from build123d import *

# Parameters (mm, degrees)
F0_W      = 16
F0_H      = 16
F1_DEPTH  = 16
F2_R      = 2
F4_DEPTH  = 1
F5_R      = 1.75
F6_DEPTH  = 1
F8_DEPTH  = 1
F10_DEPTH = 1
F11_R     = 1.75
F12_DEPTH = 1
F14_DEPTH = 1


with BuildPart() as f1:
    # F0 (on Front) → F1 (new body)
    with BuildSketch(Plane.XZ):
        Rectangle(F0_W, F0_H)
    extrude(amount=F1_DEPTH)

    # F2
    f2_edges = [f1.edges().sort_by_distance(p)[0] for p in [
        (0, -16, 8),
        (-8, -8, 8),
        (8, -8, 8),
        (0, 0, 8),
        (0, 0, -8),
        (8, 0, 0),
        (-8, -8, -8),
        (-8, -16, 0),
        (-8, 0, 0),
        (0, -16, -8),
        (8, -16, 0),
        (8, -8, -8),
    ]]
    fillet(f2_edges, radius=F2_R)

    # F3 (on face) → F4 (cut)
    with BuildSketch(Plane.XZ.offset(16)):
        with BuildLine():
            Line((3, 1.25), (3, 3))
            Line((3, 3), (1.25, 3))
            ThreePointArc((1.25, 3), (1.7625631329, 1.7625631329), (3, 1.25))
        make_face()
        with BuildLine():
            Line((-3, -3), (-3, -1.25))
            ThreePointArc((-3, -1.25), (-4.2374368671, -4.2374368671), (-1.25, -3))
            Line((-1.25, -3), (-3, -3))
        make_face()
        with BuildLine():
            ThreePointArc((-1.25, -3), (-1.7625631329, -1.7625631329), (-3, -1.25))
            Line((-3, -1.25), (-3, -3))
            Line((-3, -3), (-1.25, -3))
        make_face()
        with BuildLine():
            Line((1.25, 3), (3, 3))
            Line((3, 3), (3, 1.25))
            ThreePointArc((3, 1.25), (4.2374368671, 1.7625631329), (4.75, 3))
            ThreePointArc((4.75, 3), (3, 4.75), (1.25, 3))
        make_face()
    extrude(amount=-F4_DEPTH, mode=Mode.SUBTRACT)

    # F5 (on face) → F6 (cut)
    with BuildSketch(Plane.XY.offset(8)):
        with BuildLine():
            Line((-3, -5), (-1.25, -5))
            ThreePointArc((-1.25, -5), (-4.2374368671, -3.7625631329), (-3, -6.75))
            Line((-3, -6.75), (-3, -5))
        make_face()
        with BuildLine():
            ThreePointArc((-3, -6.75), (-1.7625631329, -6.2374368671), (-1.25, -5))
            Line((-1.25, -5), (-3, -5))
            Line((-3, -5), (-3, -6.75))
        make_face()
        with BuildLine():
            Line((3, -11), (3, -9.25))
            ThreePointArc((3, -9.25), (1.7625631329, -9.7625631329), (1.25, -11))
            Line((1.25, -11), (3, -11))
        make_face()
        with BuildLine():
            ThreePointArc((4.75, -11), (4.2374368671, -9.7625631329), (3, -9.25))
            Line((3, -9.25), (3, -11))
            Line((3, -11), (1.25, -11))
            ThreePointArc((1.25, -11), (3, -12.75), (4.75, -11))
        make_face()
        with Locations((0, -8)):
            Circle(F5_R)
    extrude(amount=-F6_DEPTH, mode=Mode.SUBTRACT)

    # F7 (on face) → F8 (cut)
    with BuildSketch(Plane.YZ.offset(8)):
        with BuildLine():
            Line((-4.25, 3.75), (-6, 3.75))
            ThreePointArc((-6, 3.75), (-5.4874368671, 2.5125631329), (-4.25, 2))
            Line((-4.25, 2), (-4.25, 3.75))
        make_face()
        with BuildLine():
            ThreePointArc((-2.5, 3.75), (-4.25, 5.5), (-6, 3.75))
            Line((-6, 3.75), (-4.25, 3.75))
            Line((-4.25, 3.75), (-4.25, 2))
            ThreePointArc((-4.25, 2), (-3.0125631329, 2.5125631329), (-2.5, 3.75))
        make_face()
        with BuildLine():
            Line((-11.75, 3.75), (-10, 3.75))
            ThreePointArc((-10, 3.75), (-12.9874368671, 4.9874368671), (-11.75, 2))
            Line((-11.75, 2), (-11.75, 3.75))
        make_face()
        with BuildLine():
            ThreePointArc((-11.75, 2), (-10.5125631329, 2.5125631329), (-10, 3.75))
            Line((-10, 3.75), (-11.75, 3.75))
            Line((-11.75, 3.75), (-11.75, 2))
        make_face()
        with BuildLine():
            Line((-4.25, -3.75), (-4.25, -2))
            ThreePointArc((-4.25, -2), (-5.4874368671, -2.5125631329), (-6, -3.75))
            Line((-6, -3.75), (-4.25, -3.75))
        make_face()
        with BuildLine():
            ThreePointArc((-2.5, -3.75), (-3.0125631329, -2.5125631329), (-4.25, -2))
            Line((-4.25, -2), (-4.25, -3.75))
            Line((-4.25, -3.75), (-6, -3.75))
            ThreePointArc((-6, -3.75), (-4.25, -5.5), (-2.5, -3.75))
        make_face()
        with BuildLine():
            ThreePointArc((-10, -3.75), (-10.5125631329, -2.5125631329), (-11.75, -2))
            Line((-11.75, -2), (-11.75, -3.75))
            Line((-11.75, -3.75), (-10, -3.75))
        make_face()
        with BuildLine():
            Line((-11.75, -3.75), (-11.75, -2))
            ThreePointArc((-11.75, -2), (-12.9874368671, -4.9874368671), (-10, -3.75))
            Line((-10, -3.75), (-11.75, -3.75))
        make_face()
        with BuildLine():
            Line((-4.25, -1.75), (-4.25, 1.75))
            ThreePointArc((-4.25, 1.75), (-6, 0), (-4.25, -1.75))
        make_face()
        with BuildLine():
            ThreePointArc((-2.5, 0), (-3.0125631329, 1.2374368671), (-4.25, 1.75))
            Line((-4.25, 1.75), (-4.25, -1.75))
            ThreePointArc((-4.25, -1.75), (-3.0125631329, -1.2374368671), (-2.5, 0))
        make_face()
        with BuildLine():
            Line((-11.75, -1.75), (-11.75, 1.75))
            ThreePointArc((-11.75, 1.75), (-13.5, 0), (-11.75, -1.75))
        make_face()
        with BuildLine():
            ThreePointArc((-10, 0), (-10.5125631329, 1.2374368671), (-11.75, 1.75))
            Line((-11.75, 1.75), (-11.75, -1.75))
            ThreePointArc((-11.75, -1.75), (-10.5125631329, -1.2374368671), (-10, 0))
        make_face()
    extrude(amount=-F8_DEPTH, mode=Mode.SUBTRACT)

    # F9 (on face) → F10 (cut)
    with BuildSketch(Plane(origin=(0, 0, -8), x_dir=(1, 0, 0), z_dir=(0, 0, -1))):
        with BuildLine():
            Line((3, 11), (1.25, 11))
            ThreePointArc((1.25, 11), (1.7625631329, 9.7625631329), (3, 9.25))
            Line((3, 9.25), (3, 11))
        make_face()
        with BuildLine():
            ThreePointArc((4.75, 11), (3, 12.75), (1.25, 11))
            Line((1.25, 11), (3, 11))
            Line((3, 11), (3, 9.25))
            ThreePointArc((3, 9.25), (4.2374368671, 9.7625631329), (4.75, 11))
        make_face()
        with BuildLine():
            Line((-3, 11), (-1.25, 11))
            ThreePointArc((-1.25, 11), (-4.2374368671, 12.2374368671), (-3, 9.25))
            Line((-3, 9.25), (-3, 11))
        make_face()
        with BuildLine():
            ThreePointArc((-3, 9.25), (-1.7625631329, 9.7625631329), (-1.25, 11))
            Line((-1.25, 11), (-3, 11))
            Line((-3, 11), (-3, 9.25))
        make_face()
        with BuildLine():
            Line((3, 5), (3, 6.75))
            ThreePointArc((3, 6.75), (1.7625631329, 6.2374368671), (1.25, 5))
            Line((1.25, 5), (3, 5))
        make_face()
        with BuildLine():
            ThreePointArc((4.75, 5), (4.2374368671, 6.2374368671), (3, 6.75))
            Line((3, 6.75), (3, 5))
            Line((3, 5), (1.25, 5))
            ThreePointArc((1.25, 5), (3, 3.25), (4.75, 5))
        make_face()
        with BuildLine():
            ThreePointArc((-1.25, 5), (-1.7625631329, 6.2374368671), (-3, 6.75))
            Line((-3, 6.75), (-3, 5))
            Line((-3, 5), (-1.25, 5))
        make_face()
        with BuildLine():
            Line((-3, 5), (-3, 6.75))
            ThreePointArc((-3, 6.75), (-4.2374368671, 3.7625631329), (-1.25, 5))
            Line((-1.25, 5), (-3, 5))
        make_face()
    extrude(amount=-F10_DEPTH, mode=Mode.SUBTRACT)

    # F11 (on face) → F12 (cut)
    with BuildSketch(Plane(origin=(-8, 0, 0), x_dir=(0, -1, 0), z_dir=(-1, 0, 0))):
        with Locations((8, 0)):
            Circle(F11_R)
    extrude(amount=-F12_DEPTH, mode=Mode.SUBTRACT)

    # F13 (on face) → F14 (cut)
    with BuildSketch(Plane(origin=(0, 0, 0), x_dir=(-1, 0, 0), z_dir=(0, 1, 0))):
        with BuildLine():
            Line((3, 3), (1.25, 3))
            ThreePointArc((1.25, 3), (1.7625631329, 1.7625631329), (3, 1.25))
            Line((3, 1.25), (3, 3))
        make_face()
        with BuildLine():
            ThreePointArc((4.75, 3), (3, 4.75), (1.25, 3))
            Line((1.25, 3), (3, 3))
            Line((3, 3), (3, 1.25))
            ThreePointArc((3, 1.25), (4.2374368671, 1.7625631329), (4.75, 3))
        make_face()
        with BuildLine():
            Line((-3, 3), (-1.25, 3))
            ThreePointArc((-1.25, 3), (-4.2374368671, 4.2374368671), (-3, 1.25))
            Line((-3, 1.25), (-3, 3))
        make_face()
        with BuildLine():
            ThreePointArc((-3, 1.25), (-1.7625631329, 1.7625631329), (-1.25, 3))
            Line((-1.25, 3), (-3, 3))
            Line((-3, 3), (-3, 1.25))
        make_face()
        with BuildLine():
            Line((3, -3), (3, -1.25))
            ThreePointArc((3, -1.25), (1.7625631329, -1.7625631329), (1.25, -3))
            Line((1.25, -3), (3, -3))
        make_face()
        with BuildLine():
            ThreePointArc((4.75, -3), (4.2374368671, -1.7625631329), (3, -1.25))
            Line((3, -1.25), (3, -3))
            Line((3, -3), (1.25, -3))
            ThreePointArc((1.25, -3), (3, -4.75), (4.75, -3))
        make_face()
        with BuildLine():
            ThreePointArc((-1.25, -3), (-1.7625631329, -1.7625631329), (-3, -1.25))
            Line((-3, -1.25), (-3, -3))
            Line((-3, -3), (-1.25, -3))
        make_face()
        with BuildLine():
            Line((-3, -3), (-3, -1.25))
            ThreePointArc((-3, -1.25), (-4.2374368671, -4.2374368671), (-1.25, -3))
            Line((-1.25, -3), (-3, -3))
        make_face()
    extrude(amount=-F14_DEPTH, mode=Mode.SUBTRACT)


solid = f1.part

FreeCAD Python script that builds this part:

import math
import FreeCAD as App
import Part
import Sketcher
Q = App.Units.Quantity

doc = App.newDocument("Part")
body = doc.addObject("PartDesign::Body", "Body")

sketch1 = body.newObject("Sketcher::SketchObject", "Sketch")
sketch1.AttachmentSupport = (doc.getObject("XZ_Plane"), [""])
sketch1.MapMode = "FlatFace"
sketch1.addGeometry([
    Part.LineSegment(App.Vector(-8, 8, 0), App.Vector(-8, -8, 0)),
    Part.LineSegment(App.Vector(-8, -8, 0), App.Vector(8, -8, 0)),
    Part.LineSegment(App.Vector(8, -8, 0), App.Vector(8, 8, 0)),
    Part.LineSegment(App.Vector(8, 8, 0), App.Vector(-8, 8, 0)),
], False)
sketch1.addConstraint([
    Sketcher.Constraint("Coincident", 0, 2, 1, 1),
    Sketcher.Constraint("Coincident", 1, 2, 2, 1),
    Sketcher.Constraint("Coincident", 2, 2, 3, 1),
    Sketcher.Constraint("Coincident", 3, 2, 0, 1),
    Sketcher.Constraint("Vertical", 0),
    Sketcher.Constraint("Horizontal", 1),
    Sketcher.Constraint("Vertical", 2),
    Sketcher.Constraint("Horizontal", 3),
    Sketcher.Constraint("Symmetric", 0, 2, 2, 2, -1, 1),
    Sketcher.Constraint("Equal", 3, 0),
    Sketcher.Constraint("DistanceX", 1, 1, 1, 2, Q("16 mm")),
])
pad1 = body.newObject("PartDesign::Pad", "Pad")
pad1.Profile = sketch1
pad1.Length = 16
doc.recompute()

fillet = body.newObject("PartDesign::Fillet", "Fillet")
fillet.Base = (pad1, ["Edge1"])
fillet.UseAllEdges = True
fillet.Radius = 2

sketch2 = body.newObject("Sketcher::SketchObject", "Sketch001")
sketch2.AttachmentSupport = (doc.getObject("XZ_Plane"), [""])
sketch2.MapMode = "FlatFace"
sketch2.AttachmentOffset = App.Placement(App.Vector(0, 0, 16), App.Rotation())
sketch2.addGeometry([
    Part.ArcOfCircle(Part.Circle(App.Vector(3, 3, 0), App.Vector(0, 0, 1), 1.8), math.radians(180), math.radians(270)),
    Part.ArcOfCircle(Part.Circle(App.Vector(3, 3, 0), App.Vector(0, 0, 1), 1.8), math.radians(-90), math.radians(0)),
    Part.ArcOfCircle(Part.Circle(App.Vector(3, 3, 0), App.Vector(0, 0, 1), 1.8), math.radians(0), math.radians(180)),
    Part.ArcOfCircle(Part.Circle(App.Vector(-3, -3, 0), App.Vector(0, 0, 1), 1.8), math.radians(90), math.radians(360)),
    Part.ArcOfCircle(Part.Circle(App.Vector(-3, -3, 0), App.Vector(0, 0, 1), 1.8), math.radians(0), math.radians(90)),
], False)
sketch2.addConstraint([
    Sketcher.Constraint("Tangent", 0, 2, 1, 1),
    Sketcher.Constraint("Tangent", 1, 2, 2, 1),
    Sketcher.Constraint("Tangent", 2, 2, 0, 1),
    Sketcher.Constraint("Tangent", 3, 1, 4, 2),
    Sketcher.Constraint("Coincident", 4, 1, 3, 2),
    Sketcher.Constraint("Equal", 2, 3),
    Sketcher.Constraint("Symmetric", 0, 3, 3, 3, -1, 1),
    Sketcher.Constraint("Horizontal", 2, 3, 1, 2),
    Sketcher.Constraint("Horizontal", 1, 2, 2, 2),
    Sketcher.Constraint("Horizontal", 3, 3, 4, 1),
    Sketcher.Constraint("Vertical", 2, 3, 0, 2),
    Sketcher.Constraint("Vertical", 4, 3, 3, 1),
    Sketcher.Constraint("Radius", 0, Q("1.75 mm")),
    Sketcher.Constraint("DistanceX", -1, 1, 0, 3, Q("3 mm")),
    Sketcher.Constraint("DistanceY", -1, 1, 0, 3, Q("3 mm")),
])
pocket1 = body.newObject("PartDesign::Pocket", "Pocket")
pocket1.Profile = sketch2
pocket1.Length = 1

sketch3 = body.newObject("Sketcher::SketchObject", "Sketch002")
sketch3.AttachmentSupport = (doc.getObject("XY_Plane"), [""])
sketch3.MapMode = "FlatFace"
sketch3.AttachmentOffset = App.Placement(App.Vector(0, 0, 8), App.Rotation())
sketch3.addGeometry([
    Part.ArcOfCircle(Part.Circle(App.Vector(-3, -5, 0), App.Vector(0, 0, 1), 1.8), math.radians(0), math.radians(270)),
    Part.ArcOfCircle(Part.Circle(App.Vector(-3, -5, 0), App.Vector(0, 0, 1), 1.8), math.radians(-90), math.radians(0)),
    Part.ArcOfCircle(Part.Circle(App.Vector(3, -11, 0), App.Vector(0, 0, 1), 1.8), math.radians(90), math.radians(180)),
    Part.ArcOfCircle(Part.Circle(App.Vector(3, -11, 0), App.Vector(0, 0, 1), 1.8), math.radians(180), math.radians(360)),
    Part.ArcOfCircle(Part.Circle(App.Vector(3, -11, 0), App.Vector(0, 0, 1), 1.8), math.radians(0), math.radians(90)),
    Part.Circle(App.Vector(0, -8, 0), App.Vector(0, 0, 1), 1.8),
], False)
sketch3.addConstraint([
    Sketcher.Constraint("Tangent", 0, 1, 1, 2),
    Sketcher.Constraint("Coincident", 1, 1, 0, 2),
    Sketcher.Constraint("Tangent", 2, 2, 3, 1),
    Sketcher.Constraint("Tangent", 3, 2, 4, 1),
    Sketcher.Constraint("Tangent", 4, 2, 2, 1),
    Sketcher.Constraint("Equal", 1, 2),
    Sketcher.Constraint("Equal", 4, 5),
    Sketcher.Constraint("PointOnObject", 5, 3, -2),
    Sketcher.Constraint("Horizontal", 1, 3, 0, 1),
    Sketcher.Constraint("Horizontal", 4, 3, 2, 2),
    Sketcher.Constraint("Horizontal", 2, 2, 3, 2),
    Sketcher.Constraint("Vertical", 0, 3, 1, 1),
    Sketcher.Constraint("Vertical", 3, 3, 4, 2),
    Sketcher.Constraint("Diameter", 5, Q("3.5 mm")),
    Sketcher.Constraint("DistanceX", 0, 3, -1, 1, Q("3 mm")),
    Sketcher.Constraint("DistanceY", 0, 3, -1, 1, Q("5 mm")),
    Sketcher.Constraint("DistanceX", -1, 1, 2, 3, Q("3 mm")),
    Sketcher.Constraint("DistanceY", 2, 3, -1, 1, Q("11 mm")),
    Sketcher.Constraint("DistanceY", 5, 3, -1, 1, Q("8 mm")),
])
pocket2 = body.newObject("PartDesign::Pocket", "Pocket001")
pocket2.Profile = sketch3
pocket2.Length = 1

sketch4 = body.newObject("Sketcher::SketchObject", "Sketch003")
sketch4.AttachmentSupport = (doc.getObject("YZ_Plane"), [""])
sketch4.MapMode = "FlatFace"
sketch4.AttachmentOffset = App.Placement(App.Vector(0, 0, 8), App.Rotation())
sketch4.addGeometry([
    Part.ArcOfCircle(Part.Circle(App.Vector(-4.2, 3.8, 0), App.Vector(0, 0, 1), 1.8), math.radians(180), math.radians(270)),
    Part.ArcOfCircle(Part.Circle(App.Vector(-4.2, 3.8, 0), App.Vector(0, 0, 1), 1.8), math.radians(-90), math.radians(0)),
    Part.ArcOfCircle(Part.Circle(App.Vector(-4.2, 3.8, 0), App.Vector(0, 0, 1), 1.8), math.radians(0), math.radians(180)),
    Part.ArcOfCircle(Part.Circle(App.Vector(-11.8, 3.8, 0), App.Vector(0, 0, 1), 1.8), math.radians(0), math.radians(270)),
    Part.ArcOfCircle(Part.Circle(App.Vector(-11.8, 3.8, 0), App.Vector(0, 0, 1), 1.8), math.radians(-90), math.radians(0)),
    Part.ArcOfCircle(Part.Circle(App.Vector(-4.2, -3.8, 0), App.Vector(0, 0, 1), 1.8), math.radians(90), math.radians(180)),
    Part.ArcOfCircle(Part.Circle(App.Vector(-4.2, -3.8, 0), App.Vector(0, 0, 1), 1.8), math.radians(180), math.radians(360)),
    Part.ArcOfCircle(Part.Circle(App.Vector(-4.2, -3.8, 0), App.Vector(0, 0, 1), 1.8), math.radians(0), math.radians(90)),
    Part.ArcOfCircle(Part.Circle(App.Vector(-11.8, -3.8, 0), App.Vector(0, 0, 1), 1.8), math.radians(0), math.radians(90)),
    Part.ArcOfCircle(Part.Circle(App.Vector(-11.8, -3.8, 0), App.Vector(0, 0, 1), 1.8), math.radians(90), math.radians(360)),
    Part.ArcOfCircle(Part.Circle(App.Vector(-4.2, 0, 0), App.Vector(0, 0, 1), 1.8), math.radians(90), math.radians(270)),
    Part.ArcOfCircle(Part.Circle(App.Vector(-4.2, 0, 0), App.Vector(0, 0, 1), 1.8), math.radians(-90), math.radians(0)),
    Part.ArcOfCircle(Part.Circle(App.Vector(-4.2, 0, 0), App.Vector(0, 0, 1), 1.8), math.radians(0), math.radians(90)),
    Part.ArcOfCircle(Part.Circle(App.Vector(-11.8, 0, 0), App.Vector(0, 0, 1), 1.8), math.radians(90), math.radians(270)),
    Part.ArcOfCircle(Part.Circle(App.Vector(-11.8, 0, 0), App.Vector(0, 0, 1), 1.8), math.radians(-90), math.radians(0)),
    Part.ArcOfCircle(Part.Circle(App.Vector(-11.8, 0, 0), App.Vector(0, 0, 1), 1.8), math.radians(0), math.radians(90)),
], False)
sketch4.addConstraint([
    Sketcher.Constraint("Tangent", 0, 2, 1, 1),
    Sketcher.Constraint("Tangent", 1, 2, 2, 1),
    Sketcher.Constraint("Tangent", 2, 2, 0, 1),
    Sketcher.Constraint("Tangent", 3, 1, 4, 2),
    Sketcher.Constraint("Coincident", 4, 1, 3, 2),
    Sketcher.Constraint("Tangent", 5, 2, 6, 1),
    Sketcher.Constraint("Tangent", 6, 2, 7, 1),
    Sketcher.Constraint("Tangent", 7, 2, 5, 1),
    Sketcher.Constraint("Tangent", 8, 1, 9, 2),
    Sketcher.Constraint("Coincident", 9, 1, 8, 2),
    Sketcher.Constraint("Tangent", 10, 2, 11, 1),
    Sketcher.Constraint("Tangent", 11, 2, 12, 1),
    Sketcher.Constraint("Tangent", 12, 2, 10, 1),
    Sketcher.Constraint("Tangent", 13, 2, 14, 1),
    Sketcher.Constraint("Tangent", 14, 2, 15, 1),
    Sketcher.Constraint("Tangent", 15, 2, 13, 1),
    Sketcher.Constraint("Equal", 2, 3),
    Sketcher.Constraint("Equal", 4, 5),
    Sketcher.Constraint("Equal", 7, 8),
    Sketcher.Constraint("Equal", 9, 10),
    Sketcher.Constraint("Equal", 12, 13),
    Sketcher.Constraint("Symmetric", 0, 3, 5, 3, -1),
    Sketcher.Constraint("Symmetric", 3, 3, 8, 3, -1),
    Sketcher.Constraint("Symmetric", 10, 2, 12, 2, -1),
    Sketcher.Constraint("Symmetric", 13, 2, 15, 2, -1),
    Sketcher.Constraint("PointOnObject", 11, 2, -1),
    Sketcher.Constraint("PointOnObject", 14, 2, -1),
    Sketcher.Constraint("Horizontal", 2, 3, 3, 3),
    Sketcher.Constraint("Horizontal", 4, 3, 1, 2),
    Sketcher.Constraint("Horizontal", 1, 2, 2, 2),
    Sketcher.Constraint("Horizontal", 2, 2, 3, 1),
    Sketcher.Constraint("Horizontal", 9, 3, 5, 2),
    Sketcher.Constraint("Horizontal", 5, 2, 6, 2),
    Sketcher.Constraint("Horizontal", 6, 2, 8, 1),
    Sketcher.Constraint("Vertical", 7, 3, 10, 3),
    Sketcher.Constraint("Vertical", 9, 3, 13, 3),
    Sketcher.Constraint("Vertical", 12, 3, 0, 2),
    Sketcher.Constraint("Vertical", 15, 3, 4, 1),
    Sketcher.Constraint("Vertical", 0, 2, 7, 2),
    Sketcher.Constraint("Vertical", 4, 1, 9, 1),
    Sketcher.Constraint("Vertical", 7, 2, 10, 2),
    Sketcher.Constraint("Vertical", 9, 1, 13, 2),
    Sketcher.Constraint("Radius", 0, Q("1.75 mm")),
    Sketcher.Constraint("DistanceY", -1, 1, 0, 2, Q("2 mm")),
    Sketcher.Constraint("DistanceX", 2, 2, -1, 1, Q("6 mm")),
    Sketcher.Constraint("DistanceX", 3, 1, -1, 1, Q("10 mm")),
])
pocket3 = body.newObject("PartDesign::Pocket", "Pocket002")
pocket3.Profile = sketch4
pocket3.Length = 1

sketch5 = body.newObject("Sketcher::SketchObject", "Sketch004")
sketch5.AttachmentSupport = (doc.getObject("XY_Plane"), [""])
sketch5.MapMode = "FlatFace"
sketch5.AttachmentOffset = App.Placement(App.Vector(0, 0, -8), App.Rotation())
sketch5.addGeometry([
    Part.ArcOfCircle(Part.Circle(App.Vector(3, -11, 0), App.Vector(0, 0, 1), 1.8), math.radians(90), math.radians(180)),
    Part.ArcOfCircle(Part.Circle(App.Vector(3, -11, 0), App.Vector(0, 0, 1), 1.8), math.radians(0), math.radians(90)),
    Part.ArcOfCircle(Part.Circle(App.Vector(3, -11, 0), App.Vector(0, 0, 1), 1.8), math.radians(180), math.radians(360)),
    Part.ArcOfCircle(Part.Circle(App.Vector(-3, -11, 0), App.Vector(0, 0, 1), 1.8), math.radians(90), math.radians(360)),
    Part.ArcOfCircle(Part.Circle(App.Vector(-3, -11, 0), App.Vector(0, 0, 1), 1.8), math.radians(0), math.radians(90)),
    Part.ArcOfCircle(Part.Circle(App.Vector(3, -5, 0), App.Vector(0, 0, 1), 1.8), math.radians(180), math.radians(270)),
    Part.ArcOfCircle(Part.Circle(App.Vector(3, -5, 0), App.Vector(0, 0, 1), 1.8), math.radians(0), math.radians(180)),
    Part.ArcOfCircle(Part.Circle(App.Vector(3, -5, 0), App.Vector(0, 0, 1), 1.8), math.radians(-90), math.radians(0)),
    Part.ArcOfCircle(Part.Circle(App.Vector(-3, -5, 0), App.Vector(0, 0, 1), 1.8), math.radians(-90), math.radians(0)),
    Part.ArcOfCircle(Part.Circle(App.Vector(-3, -5, 0), App.Vector(0, 0, 1), 1.8), math.radians(0), math.radians(270)),
], False)
sketch5.addConstraint([
    Sketcher.Constraint("Tangent", 0, 1, 1, 2),
    Sketcher.Constraint("Tangent", 1, 1, 2, 2),
    Sketcher.Constraint("Tangent", 2, 1, 0, 2),
    Sketcher.Constraint("Tangent", 3, 1, 4, 2),
    Sketcher.Constraint("Coincident", 4, 1, 3, 2),
    Sketcher.Constraint("Tangent", 5, 1, 6, 2),
    Sketcher.Constraint("Tangent", 6, 1, 7, 2),
    Sketcher.Constraint("Tangent", 7, 1, 5, 2),
    Sketcher.Constraint("Tangent", 8, 1, 9, 2),
    Sketcher.Constraint("Coincident", 9, 1, 8, 2),
    Sketcher.Constraint("Equal", 2, 3),
    Sketcher.Constraint("Equal", 4, 5),
    Sketcher.Constraint("Equal", 7, 8),
    Sketcher.Constraint("Symmetric", 0, 3, 3, 3, -2),
    Sketcher.Constraint("Symmetric", 5, 3, 8, 3, -2),
    Sketcher.Constraint("Horizontal", 4, 3, 1, 1),
    Sketcher.Constraint("Horizontal", 1, 1, 2, 1),
    Sketcher.Constraint("Horizontal", 2, 1, 4, 1),
    Sketcher.Constraint("Horizontal", 9, 3, 5, 1),
    Sketcher.Constraint("Horizontal", 5, 1, 6, 1),
    Sketcher.Constraint("Horizontal", 6, 1, 9, 1),
    Sketcher.Constraint("Vertical", 2, 3, 5, 3),
    Sketcher.Constraint("Vertical", 7, 3, 0, 1),
    Sketcher.Constraint("Vertical", 9, 3, 3, 1),
    Sketcher.Constraint("Vertical", 0, 1, 7, 1),
    Sketcher.Constraint("Vertical", 3, 1, 8, 1),
    Sketcher.Constraint("Radius", 0, Q("1.75 mm")),
    Sketcher.Constraint("DistanceX", -1, 1, 0, 3, Q("3 mm")),
    Sketcher.Constraint("DistanceY", 0, 3, -1, 1, Q("11 mm")),
    Sketcher.Constraint("DistanceY", 5, 3, -1, 1, Q("5 mm")),
])
pocket4 = body.newObject("PartDesign::Pocket", "Pocket003")
pocket4.Profile = sketch5
pocket4.Length = 1
pocket4.Reversed = True

sketch6 = body.newObject("Sketcher::SketchObject", "Sketch005")
sketch6.AttachmentSupport = (doc.getObject("YZ_Plane"), [""])
sketch6.MapMode = "FlatFace"
sketch6.AttachmentOffset = App.Placement(App.Vector(0, 0, -8), App.Rotation())
sketch6.addGeometry(Part.Circle(App.Vector(-8, 0, 0), App.Vector(0, 0, 1), 1.8), False)
sketch6.addConstraint([
    Sketcher.Constraint("PointOnObject", 0, 3, -1),
    Sketcher.Constraint("Diameter", 0, Q("3.5 mm")),
    Sketcher.Constraint("DistanceX", 0, 3, -1, 1, Q("8 mm")),
])
pocket5 = body.newObject("PartDesign::Pocket", "Pocket004")
pocket5.Profile = sketch6
pocket5.Length = 1
pocket5.Reversed = True

sketch7 = body.newObject("Sketcher::SketchObject", "Sketch006")
sketch7.AttachmentSupport = (doc.getObject("XZ_Plane"), [""])
sketch7.MapMode = "FlatFace"
sketch7.addGeometry([
    Part.ArcOfCircle(Part.Circle(App.Vector(-3, 3, 0), App.Vector(0, 0, 1), 1.8), math.radians(-90), math.radians(0)),
    Part.ArcOfCircle(Part.Circle(App.Vector(-3, 3, 0), App.Vector(0, 0, 1), 1.8), math.radians(180), math.radians(270)),
    Part.ArcOfCircle(Part.Circle(App.Vector(-3, 3, 0), App.Vector(0, 0, 1), 1.8), math.radians(0), math.radians(180)),
    Part.ArcOfCircle(Part.Circle(App.Vector(3, 3, 0), App.Vector(0, 0, 1), 1.8), math.radians(-90), math.radians(180)),
    Part.ArcOfCircle(Part.Circle(App.Vector(3, 3, 0), App.Vector(0, 0, 1), 1.8), math.radians(180), math.radians(270)),
    Part.ArcOfCircle(Part.Circle(App.Vector(-3, -3, 0), App.Vector(0, 0, 1), 1.8), math.radians(0), math.radians(90)),
    Part.ArcOfCircle(Part.Circle(App.Vector(-3, -3, 0), App.Vector(0, 0, 1), 1.8), math.radians(180), math.radians(360)),
    Part.ArcOfCircle(Part.Circle(App.Vector(-3, -3, 0), App.Vector(0, 0, 1), 1.8), math.radians(90), math.radians(180)),
    Part.ArcOfCircle(Part.Circle(App.Vector(3, -3, 0), App.Vector(0, 0, 1), 1.8), math.radians(90), math.radians(180)),
    Part.ArcOfCircle(Part.Circle(App.Vector(3, -3, 0), App.Vector(0, 0, 1), 1.8), math.radians(180), math.radians(450)),
], False)
sketch7.addConstraint([
    Sketcher.Constraint("Tangent", 0, 1, 1, 2),
    Sketcher.Constraint("Tangent", 1, 1, 2, 2),
    Sketcher.Constraint("Tangent", 2, 1, 0, 2),
    Sketcher.Constraint("Tangent", 3, 1, 4, 2),
    Sketcher.Constraint("Coincident", 4, 1, 3, 2),
    Sketcher.Constraint("Tangent", 5, 1, 6, 2),
    Sketcher.Constraint("Tangent", 6, 1, 7, 2),
    Sketcher.Constraint("Tangent", 7, 1, 5, 2),
    Sketcher.Constraint("Tangent", 8, 1, 9, 2),
    Sketcher.Constraint("Coincident", 9, 1, 8, 2),
    Sketcher.Constraint("Equal", 2, 3),
    Sketcher.Constraint("Equal", 4, 5),
    Sketcher.Constraint("Equal", 7, 8),
    Sketcher.Constraint("Symmetric", 3, 3, 5, 3, -1, 1),
    Sketcher.Constraint("Symmetric", 0, 3, 8, 3, -1, 1),
    Sketcher.Constraint("Symmetric", 0, 3, 3, 3, -2),
    Sketcher.Constraint("Horizontal", 4, 3, 1, 1),
    Sketcher.Constraint("Horizontal", 1, 1, 2, 1),
    Sketcher.Constraint("Horizontal", 2, 1, 4, 1),
    Sketcher.Constraint("Horizontal", 9, 3, 5, 1),
    Sketcher.Constraint("Horizontal", 5, 1, 6, 1),
    Sketcher.Constraint("Horizontal", 6, 1, 9, 1),
    Sketcher.Constraint("Vertical", 7, 3, 0, 1),
    Sketcher.Constraint("Vertical", 9, 3, 3, 1),
    Sketcher.Constraint("Vertical", 0, 1, 7, 1),
    Sketcher.Constraint("Vertical", 3, 1, 8, 1),
    Sketcher.Constraint("Radius", 0, Q("1.75 mm")),
    Sketcher.Constraint("DistanceX", 0, 3, -1, 1, Q("3 mm")),
    Sketcher.Constraint("DistanceY", -1, 1, 0, 3, Q("3 mm")),
])
pocket6 = body.newObject("PartDesign::Pocket", "Pocket005")
pocket6.Profile = sketch7
pocket6.Length = 1
pocket6.Reversed = True

doc.recompute()
